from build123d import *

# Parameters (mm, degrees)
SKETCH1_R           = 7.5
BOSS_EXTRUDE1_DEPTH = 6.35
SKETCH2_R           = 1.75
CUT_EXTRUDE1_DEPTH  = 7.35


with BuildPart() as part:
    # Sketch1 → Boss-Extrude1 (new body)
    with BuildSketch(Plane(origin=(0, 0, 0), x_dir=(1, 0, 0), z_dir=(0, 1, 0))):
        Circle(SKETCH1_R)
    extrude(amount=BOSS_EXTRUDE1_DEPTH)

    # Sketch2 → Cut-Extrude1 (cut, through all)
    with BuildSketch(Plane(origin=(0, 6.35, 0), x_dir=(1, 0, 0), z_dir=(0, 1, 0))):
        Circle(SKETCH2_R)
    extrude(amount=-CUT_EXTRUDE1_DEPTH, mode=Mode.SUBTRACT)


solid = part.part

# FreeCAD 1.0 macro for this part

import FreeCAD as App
import Part
import Sketcher

V = App.Vector

doc = App.newDocument("Part")
body = doc.addObject("PartDesign::Body", "Body")

sketch1 = body.newObject("Sketcher::SketchObject", "Sketch")
sketch1.AttachmentSupport = (doc.getObject("XZ_Plane"), [""])
sketch1.MapMode = "FlatFace"
sketch1.addGeometry(Part.Circle(V(0, 0, 0), V(0, 0, 1), 8), False)
sketch1.addConstraint([
    Sketcher.Constraint("Coincident", 0, 3, -1, 1),
    Sketcher.Constraint("Diameter", 0, 15.0),
])
pad1 = body.newObject("PartDesign::Pad", "Pad")
pad1.Profile = sketch1
pad1.Length = 6.35
pad1.Reversed = True

sketch2 = body.newObject("Sketcher::SketchObject", "Sketch001")
sketch2.AttachmentSupport = (doc.getObject("XZ_Plane"), [""])
sketch2.MapMode = "FlatFace"
sketch2.AttachmentOffset = App.Placement(V(0, 0, -6.35), App.Rotation())
sketch2.addGeometry(Part.Circle(V(0, 0, 0), V(0, 0, 1), 1.8), False)
sketch2.addConstraint([
    Sketcher.Constraint("Coincident", 0, 3, -1, 1),
    Sketcher.Constraint("Diameter", 0, 3.5),
])
pocket1 = body.newObject("PartDesign::Pocket", "Pocket")
pocket1.Profile = sketch2
pocket1.Type = "ThroughAll"
pocket1.Reversed = True

doc.recompute()
